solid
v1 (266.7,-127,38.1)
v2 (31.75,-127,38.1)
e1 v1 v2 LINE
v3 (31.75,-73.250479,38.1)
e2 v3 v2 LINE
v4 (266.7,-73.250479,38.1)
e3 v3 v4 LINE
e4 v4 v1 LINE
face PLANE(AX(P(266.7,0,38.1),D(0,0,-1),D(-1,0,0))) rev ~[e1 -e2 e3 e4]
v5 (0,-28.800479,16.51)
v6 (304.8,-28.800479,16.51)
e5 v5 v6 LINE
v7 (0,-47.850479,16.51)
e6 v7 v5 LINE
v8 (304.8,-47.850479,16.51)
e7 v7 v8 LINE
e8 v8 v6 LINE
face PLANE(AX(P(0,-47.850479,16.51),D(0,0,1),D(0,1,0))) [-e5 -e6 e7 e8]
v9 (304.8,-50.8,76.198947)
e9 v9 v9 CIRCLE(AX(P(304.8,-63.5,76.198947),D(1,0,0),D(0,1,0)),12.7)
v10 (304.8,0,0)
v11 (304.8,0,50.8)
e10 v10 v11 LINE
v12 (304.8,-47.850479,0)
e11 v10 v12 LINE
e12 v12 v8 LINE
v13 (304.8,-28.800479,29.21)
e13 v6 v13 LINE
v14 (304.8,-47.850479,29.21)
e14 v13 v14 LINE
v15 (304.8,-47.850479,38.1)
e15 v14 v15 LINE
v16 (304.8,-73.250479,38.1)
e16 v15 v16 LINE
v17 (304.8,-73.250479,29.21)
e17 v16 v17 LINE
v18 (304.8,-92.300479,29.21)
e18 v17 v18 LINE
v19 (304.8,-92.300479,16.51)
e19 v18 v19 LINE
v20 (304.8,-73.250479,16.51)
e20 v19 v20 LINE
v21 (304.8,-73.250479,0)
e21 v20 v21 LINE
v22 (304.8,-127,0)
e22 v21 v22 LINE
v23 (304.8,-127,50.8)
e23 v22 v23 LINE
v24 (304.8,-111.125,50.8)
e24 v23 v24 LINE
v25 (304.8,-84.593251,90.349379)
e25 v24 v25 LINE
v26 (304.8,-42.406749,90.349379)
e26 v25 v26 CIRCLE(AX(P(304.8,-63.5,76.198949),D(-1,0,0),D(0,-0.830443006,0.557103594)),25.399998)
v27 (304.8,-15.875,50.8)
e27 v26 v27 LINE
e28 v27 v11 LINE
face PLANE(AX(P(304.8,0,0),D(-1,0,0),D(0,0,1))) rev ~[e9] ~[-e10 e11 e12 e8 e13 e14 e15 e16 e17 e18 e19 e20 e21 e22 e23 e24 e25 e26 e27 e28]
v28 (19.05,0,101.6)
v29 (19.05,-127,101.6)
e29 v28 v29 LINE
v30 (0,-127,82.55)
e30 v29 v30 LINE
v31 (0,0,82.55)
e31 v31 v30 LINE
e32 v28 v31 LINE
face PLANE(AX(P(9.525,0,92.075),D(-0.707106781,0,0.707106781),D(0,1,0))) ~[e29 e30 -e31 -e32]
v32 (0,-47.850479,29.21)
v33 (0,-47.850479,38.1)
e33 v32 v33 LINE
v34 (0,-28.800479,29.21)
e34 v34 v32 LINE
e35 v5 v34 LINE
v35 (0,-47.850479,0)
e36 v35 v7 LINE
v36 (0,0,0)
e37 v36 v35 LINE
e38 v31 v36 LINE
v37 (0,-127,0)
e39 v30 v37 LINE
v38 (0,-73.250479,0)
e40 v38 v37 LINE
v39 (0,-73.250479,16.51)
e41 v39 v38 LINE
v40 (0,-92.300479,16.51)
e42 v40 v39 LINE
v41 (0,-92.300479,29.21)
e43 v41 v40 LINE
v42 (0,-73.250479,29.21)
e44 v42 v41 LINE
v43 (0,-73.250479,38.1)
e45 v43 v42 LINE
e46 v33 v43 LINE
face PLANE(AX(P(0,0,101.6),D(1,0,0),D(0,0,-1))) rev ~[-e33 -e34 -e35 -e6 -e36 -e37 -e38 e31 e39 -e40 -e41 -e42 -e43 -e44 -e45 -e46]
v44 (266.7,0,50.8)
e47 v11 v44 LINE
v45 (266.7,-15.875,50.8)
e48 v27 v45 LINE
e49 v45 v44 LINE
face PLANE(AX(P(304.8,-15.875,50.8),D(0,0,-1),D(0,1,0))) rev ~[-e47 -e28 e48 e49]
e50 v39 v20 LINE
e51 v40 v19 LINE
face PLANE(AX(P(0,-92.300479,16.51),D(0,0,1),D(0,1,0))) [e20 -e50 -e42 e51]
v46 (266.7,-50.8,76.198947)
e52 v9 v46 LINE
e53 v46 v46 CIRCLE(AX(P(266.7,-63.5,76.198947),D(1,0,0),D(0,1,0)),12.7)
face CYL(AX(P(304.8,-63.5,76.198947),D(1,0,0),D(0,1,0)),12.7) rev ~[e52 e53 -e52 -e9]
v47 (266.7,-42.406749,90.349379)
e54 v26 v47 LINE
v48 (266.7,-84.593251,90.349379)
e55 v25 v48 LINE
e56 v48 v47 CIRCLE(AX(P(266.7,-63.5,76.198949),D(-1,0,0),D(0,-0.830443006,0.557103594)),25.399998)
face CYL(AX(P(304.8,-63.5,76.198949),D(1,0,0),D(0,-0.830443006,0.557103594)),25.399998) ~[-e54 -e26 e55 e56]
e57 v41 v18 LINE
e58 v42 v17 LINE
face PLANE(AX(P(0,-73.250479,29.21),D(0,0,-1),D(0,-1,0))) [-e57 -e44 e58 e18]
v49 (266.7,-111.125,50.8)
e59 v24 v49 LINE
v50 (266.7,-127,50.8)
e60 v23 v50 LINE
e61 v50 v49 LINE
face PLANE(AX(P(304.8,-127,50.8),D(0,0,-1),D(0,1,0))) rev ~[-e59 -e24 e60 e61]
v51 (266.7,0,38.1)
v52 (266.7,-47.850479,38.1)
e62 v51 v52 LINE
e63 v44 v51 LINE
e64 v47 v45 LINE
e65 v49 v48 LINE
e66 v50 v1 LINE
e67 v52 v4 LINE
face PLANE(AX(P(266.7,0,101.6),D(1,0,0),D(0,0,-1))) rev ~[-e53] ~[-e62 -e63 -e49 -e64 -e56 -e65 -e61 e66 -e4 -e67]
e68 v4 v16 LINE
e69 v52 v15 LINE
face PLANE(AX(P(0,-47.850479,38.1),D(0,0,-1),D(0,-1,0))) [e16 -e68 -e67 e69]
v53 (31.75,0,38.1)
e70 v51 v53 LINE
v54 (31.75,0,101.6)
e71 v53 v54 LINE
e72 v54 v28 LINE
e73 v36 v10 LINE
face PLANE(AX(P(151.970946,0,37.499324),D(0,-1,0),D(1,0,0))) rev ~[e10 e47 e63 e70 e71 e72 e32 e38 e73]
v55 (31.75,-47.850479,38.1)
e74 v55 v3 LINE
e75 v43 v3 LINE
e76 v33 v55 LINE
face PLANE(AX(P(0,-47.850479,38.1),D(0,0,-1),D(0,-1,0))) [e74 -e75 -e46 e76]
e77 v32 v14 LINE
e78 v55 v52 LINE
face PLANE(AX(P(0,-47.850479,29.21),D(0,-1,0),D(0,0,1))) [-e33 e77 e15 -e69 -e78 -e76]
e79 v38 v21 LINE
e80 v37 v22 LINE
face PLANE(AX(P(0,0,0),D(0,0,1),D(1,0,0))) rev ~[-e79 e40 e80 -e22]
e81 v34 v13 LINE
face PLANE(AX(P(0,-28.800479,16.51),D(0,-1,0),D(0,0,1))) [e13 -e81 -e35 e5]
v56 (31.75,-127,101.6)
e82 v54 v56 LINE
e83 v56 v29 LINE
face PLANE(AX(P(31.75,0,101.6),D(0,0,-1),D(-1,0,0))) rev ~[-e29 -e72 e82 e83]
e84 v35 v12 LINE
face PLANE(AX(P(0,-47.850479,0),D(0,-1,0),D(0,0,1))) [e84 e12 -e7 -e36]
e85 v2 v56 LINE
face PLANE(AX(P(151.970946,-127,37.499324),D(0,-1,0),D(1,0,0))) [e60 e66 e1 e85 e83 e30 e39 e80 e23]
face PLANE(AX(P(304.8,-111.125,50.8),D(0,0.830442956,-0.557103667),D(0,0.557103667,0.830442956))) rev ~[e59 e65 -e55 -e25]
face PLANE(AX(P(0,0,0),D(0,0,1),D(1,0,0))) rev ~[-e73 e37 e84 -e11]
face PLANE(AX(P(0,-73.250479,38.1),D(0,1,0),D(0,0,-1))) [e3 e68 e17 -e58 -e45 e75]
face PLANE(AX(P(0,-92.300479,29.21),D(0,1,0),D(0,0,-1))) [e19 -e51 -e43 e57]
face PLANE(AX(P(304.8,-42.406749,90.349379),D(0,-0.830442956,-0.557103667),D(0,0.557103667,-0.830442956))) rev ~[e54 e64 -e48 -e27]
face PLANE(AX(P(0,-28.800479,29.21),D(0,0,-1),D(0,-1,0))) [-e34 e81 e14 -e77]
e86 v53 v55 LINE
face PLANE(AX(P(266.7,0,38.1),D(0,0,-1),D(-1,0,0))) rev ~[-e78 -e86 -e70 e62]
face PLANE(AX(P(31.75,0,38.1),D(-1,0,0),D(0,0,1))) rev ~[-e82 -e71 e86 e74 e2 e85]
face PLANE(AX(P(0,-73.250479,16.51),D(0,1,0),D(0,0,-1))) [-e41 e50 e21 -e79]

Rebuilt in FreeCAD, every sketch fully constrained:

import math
import FreeCAD as App
import Part
import Sketcher

V = App.Vector
Q = App.Units.Quantity


def edges_at(feature, points):
    """Names of the edges that pass closest to the given points."""
    edges = feature.Shape.Edges
    near = lambda p: min(range(len(edges)), key=lambda i: edges[i].distToShape(Part.Vertex(*p))[0])
    return sorted({f"Edge{near(p) + 1}" for p in points})


def add_polygon(sketch, points):
    """Adds a closed chain of lines whose ends are joined by coincident constraints."""
    first, n = sketch.GeometryCount, len(points)
    for a, b in zip(points, points[1:] + points[:1]):
        sketch.addGeometry(Part.LineSegment(App.Vector(*a, 0), App.Vector(*b, 0)), False)
    for i in range(n):
        sketch.addConstraint(Sketcher.Constraint("Coincident", first + i, 2, first + (i + 1) % n, 1))

doc = App.newDocument("Part")
body = doc.addObject("PartDesign::Body", "Body")

sketch1 = doc.addObject("Sketcher::SketchObject", "Sketch")
body.addObject(sketch1)
sketch1.AttachmentSupport = (doc.XZ_Plane, [""])
sketch1.MapMode = "FlatFace"
add_polygon(sketch1, [(32, 102), (0, 102), (0, 0), (305, 0), (305, 102), (267, 102), (267, 38), (32, 38)])
sketch1.addConstraint(Sketcher.Constraint("Horizontal", 0))
sketch1.addConstraint(Sketcher.Constraint("Vertical", 1))
sketch1.addConstraint(Sketcher.Constraint("Horizontal", 2))
sketch1.addConstraint(Sketcher.Constraint("Vertical", 3))
sketch1.addConstraint(Sketcher.Constraint("Horizontal", 4))
sketch1.addConstraint(Sketcher.Constraint("Vertical", 5))
sketch1.addConstraint(Sketcher.Constraint("Horizontal", 6))
sketch1.addConstraint(Sketcher.Constraint("Vertical", 7))
sketch1.addConstraint(Sketcher.Constraint("Coincident", 1, 2, -1, 1))
sketch1.addConstraint(Sketcher.Constraint("Horizontal", 0, 2, 3, 2))
sketch1.addConstraint(Sketcher.Constraint("DistanceX", 2, 1, 2, 2, Q("12 in")))
sketch1.addConstraint(Sketcher.Constraint("DistanceY", 1, 2, 1, 1, Q("4 in")))
sketch1.addConstraint(Sketcher.Constraint("DistanceX", 4, 2, 4, 1, Q("1.5 in")))
sketch1.addConstraint(Sketcher.Constraint("DistanceY", 5, 2, 5, 1, Q("2.5 in")))
sketch1.addConstraint(Sketcher.Constraint("DistanceX", 0, 2, 0, 1, Q("1.25 in")))
pad1 = doc.addObject("PartDesign::Pad", "Pad")
body.addObject(pad1)
pad1.Profile = sketch1
pad1.Length = Q("5 in")
doc.recompute()

chamfer = doc.addObject("PartDesign::Chamfer", "Chamfer")
body.addObject(chamfer)
chamfer.Base = (pad1, edges_at(pad1, [(0, -63.5, 101.6)]))
chamfer.Size = Q("0.75 in")

sketch2 = doc.addObject("Sketcher::SketchObject", "Sketch001")
body.addObject(sketch2)
sketch2.AttachmentSupport = (doc.YZ_Plane, [""])
sketch2.MapMode = "FlatFace"
add_polygon(sketch2, [(-73, 0), (-48, 0), (-48, 17), (-29, 17), (-29, 29), (-48, 29), (-48, 38), (-73, 38), (-73, 29), (-92, 29), (-92, 17), (-73, 17)])
sketch2.addConstraint(Sketcher.Constraint("Horizontal", 0))
sketch2.addConstraint(Sketcher.Constraint("Vertical", 1))
sketch2.addConstraint(Sketcher.Constraint("Horizontal", 2))
sketch2.addConstraint(Sketcher.Constraint("Vertical", 3))
sketch2.addConstraint(Sketcher.Constraint("Horizontal", 4))
sketch2.addConstraint(Sketcher.Constraint("Vertical", 5))
sketch2.addConstraint(Sketcher.Constraint("Horizontal", 6))
sketch2.addConstraint(Sketcher.Constraint("Vertical", 7))
sketch2.addConstraint(Sketcher.Constraint("Horizontal", 8))
sketch2.addConstraint(Sketcher.Constraint("Vertical", 9))
sketch2.addConstraint(Sketcher.Constraint("Horizontal", 10))
sketch2.addConstraint(Sketcher.Constraint("Vertical", 11))
sketch2.addConstraint(Sketcher.Constraint("PointOnObject", 0, 2, -1))
sketch2.addConstraint(Sketcher.Constraint("Horizontal", 4, 2, 7, 2))
sketch2.addConstraint(Sketcher.Constraint("Horizontal", 2, 2, 9, 2))
sketch2.addConstraint(Sketcher.Constraint("Vertical", 1, 2, 4, 2))
sketch2.addConstraint(Sketcher.Constraint("Vertical", 7, 2, 10, 2))
sketch2.addConstraint(Sketcher.Constraint("Equal", 4, 8))
sketch2.addConstraint(Sketcher.Constraint("DistanceX", 0, 1, 0, 2, Q("1 in")))
sketch2.addConstraint(Sketcher.Constraint("DistanceY", 3, 1, 3, 2, Q("0.5 in")))
sketch2.addConstraint(Sketcher.Constraint("DistanceX", 2, 1, 2, 2, Q("0.75 in")))
sketch2.addConstraint(Sketcher.Constraint("DistanceY", 1, 1, 1, 2, Q("0.65 in")))
sketch2.addConstraint(Sketcher.Constraint("DistanceY", 5, 1, 5, 2, Q("0.35 in")))
sketch2.addConstraint(Sketcher.Constraint("DistanceX", 0, 2, -1, 1, Q("47.850479 mm")))
pocket1 = doc.addObject("PartDesign::Pocket", "Pocket")
body.addObject(pocket1)
pocket1.Profile = sketch2
pocket1.Type = "ThroughAll"
pocket1.Reversed = True

sketch3 = doc.addObject("Sketcher::SketchObject", "Sketch002")
body.addObject(sketch3)
sketch3.AttachmentSupport = (doc.YZ_Plane, [""])
sketch3.MapMode = "FlatFace"
sketch3.AttachmentOffset = App.Placement(V(0, 0, 12 * 25.4), App.Rotation())
sketch3.addGeometry(Part.LineSegment(V(-127, 102, 0), V(-127, 51, 0)), False)
sketch3.addGeometry(Part.LineSegment(V(-127, 51, 0), V(-111, 51, 0)), False)
sketch3.addGeometry(Part.LineSegment(V(-111, 51, 0), V(-85, 90, 0)), False)
sketch3.addGeometry(Part.ArcOfCircle(Part.Circle(V(-64, 76, 0), V(0, 0, 1), 25), math.radians(34), math.radians(146)), False)
sketch3.addGeometry(Part.LineSegment(V(-42, 90, 0), V(-16, 51, 0)), False)
sketch3.addGeometry(Part.LineSegment(V(-16, 51, 0), V(0, 51, 0)), False)
sketch3.addGeometry(Part.LineSegment(V(0, 51, 0), V(0, 102, 0)), False)
sketch3.addGeometry(Part.LineSegment(V(0, 102, 0), V(-127, 102, 0)), False)
sketch3.addGeometry(Part.Circle(V(-64, 76, 0), V(0, 0, 1), 13), False)
sketch3.addConstraint(Sketcher.Constraint("Coincident", 0, 2, 1, 1))
sketch3.addConstraint(Sketcher.Constraint("Coincident", 1, 2, 2, 1))
sketch3.addConstraint(Sketcher.Constraint("Tangent", 2, 2, 3, 2))
sketch3.addConstraint(Sketcher.Constraint("Tangent", 3, 1, 4, 1))
sketch3.addConstraint(Sketcher.Constraint("Coincident", 4, 2, 5, 1))
sketch3.addConstraint(Sketcher.Constraint("Coincident", 5, 2, 6, 1))
sketch3.addConstraint(Sketcher.Constraint("Coincident", 6, 2, 7, 1))
sketch3.addConstraint(Sketcher.Constraint("Coincident", 7, 2, 0, 1))
sketch3.addConstraint(Sketcher.Constraint("Vertical", 0))
sketch3.addConstraint(Sketcher.Constraint("Horizontal", 1))
sketch3.addConstraint(Sketcher.Constraint("Horizontal", 5))
sketch3.addConstraint(Sketcher.Constraint("Vertical", 6))
sketch3.addConstraint(Sketcher.Constraint("Horizontal", 7))
sketch3.addConstraint(Sketcher.Constraint("Coincident", 8, 3, 3, 3))
sketch3.addConstraint(Sketcher.Constraint("PointOnObject", 5, 2, -2))
sketch3.addConstraint(Sketcher.Constraint("Horizontal", 2, 2, 3, 1))
sketch3.addConstraint(Sketcher.Constraint("Horizontal", 1, 2, 4, 2))
sketch3.addConstraint(Sketcher.Constraint("Equal", 1, 5))
sketch3.addConstraint(Sketcher.Constraint("Diameter", 8, Q("1 in")))
sketch3.addConstraint(Sketcher.Constraint("Radius", 3, Q("0.9999999 in")))
sketch3.addConstraint(Sketcher.Constraint("DistanceX", 7, 2, 7, 1, Q("5 in")))
sketch3.addConstraint(Sketcher.Constraint("DistanceY", 0, 2, 0, 1, Q("2 in")))
sketch3.addConstraint(Sketcher.Constraint("DistanceY", -1, 1, 0, 2, Q("2 in")))
sketch3.addConstraint(Sketcher.Constraint("DistanceX", 1, 1, 1, 2, Q("0.625 in")))
sketch3.addConstraint(Sketcher.Constraint("DistanceX", 2, 2, 3, 1, Q("42.186502 mm")))
pocket2 = doc.addObject("PartDesign::Pocket", "Pocket001")
body.addObject(pocket2)
pocket2.Profile = sketch3
pocket2.Length = Q("1.5 in")

doc.recompute()
